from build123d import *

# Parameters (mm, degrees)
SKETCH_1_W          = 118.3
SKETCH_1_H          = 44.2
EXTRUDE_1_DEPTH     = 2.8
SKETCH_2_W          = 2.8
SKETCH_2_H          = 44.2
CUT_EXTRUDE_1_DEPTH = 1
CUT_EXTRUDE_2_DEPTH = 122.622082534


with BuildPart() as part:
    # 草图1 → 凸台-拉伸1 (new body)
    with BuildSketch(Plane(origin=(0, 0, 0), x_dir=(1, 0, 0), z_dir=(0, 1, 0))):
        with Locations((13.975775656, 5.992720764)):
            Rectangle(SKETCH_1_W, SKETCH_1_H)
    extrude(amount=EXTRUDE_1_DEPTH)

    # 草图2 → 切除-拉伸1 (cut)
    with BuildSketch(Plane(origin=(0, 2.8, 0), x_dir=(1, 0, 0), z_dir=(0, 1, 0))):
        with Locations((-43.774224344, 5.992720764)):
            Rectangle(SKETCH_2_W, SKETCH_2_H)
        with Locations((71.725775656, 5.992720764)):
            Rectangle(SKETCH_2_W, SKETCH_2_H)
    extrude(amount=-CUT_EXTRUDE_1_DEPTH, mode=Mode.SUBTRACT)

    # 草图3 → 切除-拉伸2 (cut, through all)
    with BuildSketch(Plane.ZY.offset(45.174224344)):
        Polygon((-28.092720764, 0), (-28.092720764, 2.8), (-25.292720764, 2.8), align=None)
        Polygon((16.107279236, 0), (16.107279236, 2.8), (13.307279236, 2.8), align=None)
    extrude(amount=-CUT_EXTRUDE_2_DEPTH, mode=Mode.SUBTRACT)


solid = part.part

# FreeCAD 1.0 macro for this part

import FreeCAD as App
import Part
import Sketcher

V = App.Vector

doc = App.newDocument("Part")
body = doc.addObject("PartDesign::Body", "Body")

sketch1 = body.newObject("Sketcher::SketchObject", "Sketch")
sketch1.AttachmentSupport = (doc.getObject("XZ_Plane"), [""])
sketch1.MapMode = "FlatFace"
sketch1.addGeometry(Part.LineSegment(V(-45, -28, 0), V(-45, 16, 0)), False)
sketch1.addGeometry(Part.LineSegment(V(-45, 16, 0), V(73, 16, 0)), False)
sketch1.addGeometry(Part.LineSegment(V(73, 16, 0), V(73, -28, 0)), False)
sketch1.addGeometry(Part.LineSegment(V(73, -28, 0), V(-45, -28, 0)), False)
sketch1.addConstraint(Sketcher.Constraint("Coincident", 0, 2, 1, 1))
sketch1.addConstraint(Sketcher.Constraint("Coincident", 1, 2, 2, 1))
sketch1.addConstraint(Sketcher.Constraint("Coincident", 2, 2, 3, 1))
sketch1.addConstraint(Sketcher.Constraint("Coincident", 3, 2, 0, 1))
sketch1.addConstraint(Sketcher.Constraint("Vertical", 0))
sketch1.addConstraint(Sketcher.Constraint("Horizontal", 1))
sketch1.addConstraint(Sketcher.Constraint("Vertical", 2))
sketch1.addConstraint(Sketcher.Constraint("Horizontal", 3))
sketch1.addConstraint(Sketcher.Constraint("DistanceX", 1, 1, 1, 2, 118.3))
sketch1.addConstraint(Sketcher.Constraint("DistanceY", 0, 1, 0, 2, 44.2))
sketch1.addConstraint(Sketcher.Constraint("DistanceY", -1, 1, 0, 2, 16.107279))
sketch1.addConstraint(Sketcher.Constraint("DistanceX", 0, 2, -1, 1, 45.174224))
pad1 = body.newObject("PartDesign::Pad", "Pad")
pad1.Profile = sketch1
pad1.Length = 2.8
pad1.Reversed = True

sketch2 = body.newObject("Sketcher::SketchObject", "Sketch001")
sketch2.AttachmentSupport = (doc.getObject("XZ_Plane"), [""])
sketch2.MapMode = "FlatFace"
sketch2.AttachmentOffset = App.Placement(V(0, 0, -2.8), App.Rotation())
sketch2.addGeometry(Part.LineSegment(V(-45.2, -28.1, 0), V(-45.2, 16.1, 0)), False)
sketch2.addGeometry(Part.LineSegment(V(-45.2, 16.1, 0), V(-42.4, 16.1, 0)), False)
sketch2.addGeometry(Part.LineSegment(V(-42.4, 16.1, 0), V(-42.4, -28.1, 0)), False)
sketch2.addGeometry(Part.LineSegment(V(-42.4, -28.1, 0), V(-45.2, -28.1, 0)), False)
sketch2.addGeometry(Part.LineSegment(V(70.3, -28.1, 0), V(70.3, 16.1, 0)), False)
sketch2.addGeometry(Part.LineSegment(V(70.3, 16.1, 0), V(73.1, 16.1, 0)), False)
sketch2.addGeometry(Part.LineSegment(V(73.1, 16.1, 0), V(73.1, -28.1, 0)), False)
sketch2.addGeometry(Part.LineSegment(V(73.1, -28.1, 0), V(70.3, -28.1, 0)), False)
sketch2.addConstraint(Sketcher.Constraint("Coincident", 0, 2, 1, 1))
sketch2.addConstraint(Sketcher.Constraint("Coincident", 1, 2, 2, 1))
sketch2.addConstraint(Sketcher.Constraint("Coincident", 2, 2, 3, 1))
sketch2.addConstraint(Sketcher.Constraint("Coincident", 3, 2, 0, 1))
sketch2.addConstraint(Sketcher.Constraint("Coincident", 4, 2, 5, 1))
sketch2.addConstraint(Sketcher.Constraint("Coincident", 5, 2, 6, 1))
sketch2.addConstraint(Sketcher.Constraint("Coincident", 6, 2, 7, 1))
sketch2.addConstraint(Sketcher.Constraint("Coincident", 7, 2, 4, 1))
sketch2.addConstraint(Sketcher.Constraint("Vertical", 0))
sketch2.addConstraint(Sketcher.Constraint("Horizontal", 1))
sketch2.addConstraint(Sketcher.Constraint("Vertical", 2))
sketch2.addConstraint(Sketcher.Constraint("Horizontal", 3))
sketch2.addConstraint(Sketcher.Constraint("Vertical", 4))
sketch2.addConstraint(Sketcher.Constraint("Horizontal", 5))
sketch2.addConstraint(Sketcher.Constraint("Vertical", 6))
sketch2.addConstraint(Sketcher.Constraint("Horizontal", 7))
sketch2.addConstraint(Sketcher.Constraint("Horizontal", 1, 2, 4, 2))
sketch2.addConstraint(Sketcher.Constraint("Horizontal", 3, 2, 6, 2))
sketch2.addConstraint(Sketcher.Constraint("Equal", 3, 5))
sketch2.addConstraint(Sketcher.Constraint("DistanceX", 1, 1, 1, 2, 2.8))
sketch2.addConstraint(Sketcher.Constraint("DistanceY", 0, 1, 0, 2, 44.2))
sketch2.addConstraint(Sketcher.Constraint("DistanceX", 1, 2, 4, 2, 112.7))
sketch2.addConstraint(Sketcher.Constraint("DistanceY", -1, 1, 0, 2, 16.107279))
sketch2.addConstraint(Sketcher.Constraint("DistanceX", 0, 2, -1, 1, 45.174224))
pocket1 = body.newObject("PartDesign::Pocket", "Pocket")
pocket1.Profile = sketch2
pocket1.Length = 1
pocket1.Reversed = True

sketch3 = body.newObject("Sketcher::SketchObject", "Sketch002")
sketch3.AttachmentSupport = (doc.getObject("YZ_Plane"), [""])
sketch3.MapMode = "FlatFace"
sketch3.AttachmentOffset = App.Placement(V(0, 0, -45.174224), App.Rotation())
sketch3.addGeometry(Part.LineSegment(V(2.8, -28.1, 0), V(0, -28.1, 0)), False)
sketch3.addGeometry(Part.LineSegment(V(0, -28.1, 0), V(2.8, -25.3, 0)), False)
sketch3.addGeometry(Part.LineSegment(V(2.8, -25.3, 0), V(2.8, -28.1, 0)), False)
sketch3.addGeometry(Part.LineSegment(V(0, 16.1, 0), V(2.8, 16.1, 0)), False)
sketch3.addGeometry(Part.LineSegment(V(2.8, 16.1, 0), V(2.8, 13.3, 0)), False)
sketch3.addGeometry(Part.LineSegment(V(2.8, 13.3, 0), V(0, 16.1, 0)), False)
sketch3.addConstraint(Sketcher.Constraint("Coincident", 0, 2, 1, 1))
sketch3.addConstraint(Sketcher.Constraint("Coincident", 1, 2, 2, 1))
sketch3.addConstraint(Sketcher.Constraint("Coincident", 2, 2, 0, 1))
sketch3.addConstraint(Sketcher.Constraint("Coincident", 3, 2, 4, 1))
sketch3.addConstraint(Sketcher.Constraint("Coincident", 4, 2, 5, 1))
sketch3.addConstraint(Sketcher.Constraint("Coincident", 5, 2, 3, 1))
sketch3.addConstraint(Sketcher.Constraint("Horizontal", 0))
sketch3.addConstraint(Sketcher.Constraint("Vertical", 2))
sketch3.addConstraint(Sketcher.Constraint("Horizontal", 3))
sketch3.addConstraint(Sketcher.Constraint("Vertical", 4))
sketch3.addConstraint(Sketcher.Constraint("PointOnObject", 0, 2, -2))
sketch3.addConstraint(Sketcher.Constraint("PointOnObject", 5, 2, -2))
sketch3.addConstraint(Sketcher.Constraint("Perpendicular", 1, 5))
sketch3.addConstraint(Sketcher.Constraint("Vertical", 2, 2, 3, 2))
sketch3.addConstraint(Sketcher.Constraint("Equal", 3, 2))
sketch3.addConstraint(Sketcher.Constraint("DistanceX", 0, 2, 0, 1, 2.8))
sketch3.addConstraint(Sketcher.Constraint("DistanceY", 1, 2, 3, 2, 41.4))
sketch3.addConstraint(Sketcher.Constraint("DistanceY", 0, 2, -1, 1, 28.092721))
pocket2 = body.newObject("PartDesign::Pocket", "Pocket001")
pocket2.Profile = sketch3
pocket2.Type = "ThroughAll"
pocket2.Reversed = True

doc.recompute()
